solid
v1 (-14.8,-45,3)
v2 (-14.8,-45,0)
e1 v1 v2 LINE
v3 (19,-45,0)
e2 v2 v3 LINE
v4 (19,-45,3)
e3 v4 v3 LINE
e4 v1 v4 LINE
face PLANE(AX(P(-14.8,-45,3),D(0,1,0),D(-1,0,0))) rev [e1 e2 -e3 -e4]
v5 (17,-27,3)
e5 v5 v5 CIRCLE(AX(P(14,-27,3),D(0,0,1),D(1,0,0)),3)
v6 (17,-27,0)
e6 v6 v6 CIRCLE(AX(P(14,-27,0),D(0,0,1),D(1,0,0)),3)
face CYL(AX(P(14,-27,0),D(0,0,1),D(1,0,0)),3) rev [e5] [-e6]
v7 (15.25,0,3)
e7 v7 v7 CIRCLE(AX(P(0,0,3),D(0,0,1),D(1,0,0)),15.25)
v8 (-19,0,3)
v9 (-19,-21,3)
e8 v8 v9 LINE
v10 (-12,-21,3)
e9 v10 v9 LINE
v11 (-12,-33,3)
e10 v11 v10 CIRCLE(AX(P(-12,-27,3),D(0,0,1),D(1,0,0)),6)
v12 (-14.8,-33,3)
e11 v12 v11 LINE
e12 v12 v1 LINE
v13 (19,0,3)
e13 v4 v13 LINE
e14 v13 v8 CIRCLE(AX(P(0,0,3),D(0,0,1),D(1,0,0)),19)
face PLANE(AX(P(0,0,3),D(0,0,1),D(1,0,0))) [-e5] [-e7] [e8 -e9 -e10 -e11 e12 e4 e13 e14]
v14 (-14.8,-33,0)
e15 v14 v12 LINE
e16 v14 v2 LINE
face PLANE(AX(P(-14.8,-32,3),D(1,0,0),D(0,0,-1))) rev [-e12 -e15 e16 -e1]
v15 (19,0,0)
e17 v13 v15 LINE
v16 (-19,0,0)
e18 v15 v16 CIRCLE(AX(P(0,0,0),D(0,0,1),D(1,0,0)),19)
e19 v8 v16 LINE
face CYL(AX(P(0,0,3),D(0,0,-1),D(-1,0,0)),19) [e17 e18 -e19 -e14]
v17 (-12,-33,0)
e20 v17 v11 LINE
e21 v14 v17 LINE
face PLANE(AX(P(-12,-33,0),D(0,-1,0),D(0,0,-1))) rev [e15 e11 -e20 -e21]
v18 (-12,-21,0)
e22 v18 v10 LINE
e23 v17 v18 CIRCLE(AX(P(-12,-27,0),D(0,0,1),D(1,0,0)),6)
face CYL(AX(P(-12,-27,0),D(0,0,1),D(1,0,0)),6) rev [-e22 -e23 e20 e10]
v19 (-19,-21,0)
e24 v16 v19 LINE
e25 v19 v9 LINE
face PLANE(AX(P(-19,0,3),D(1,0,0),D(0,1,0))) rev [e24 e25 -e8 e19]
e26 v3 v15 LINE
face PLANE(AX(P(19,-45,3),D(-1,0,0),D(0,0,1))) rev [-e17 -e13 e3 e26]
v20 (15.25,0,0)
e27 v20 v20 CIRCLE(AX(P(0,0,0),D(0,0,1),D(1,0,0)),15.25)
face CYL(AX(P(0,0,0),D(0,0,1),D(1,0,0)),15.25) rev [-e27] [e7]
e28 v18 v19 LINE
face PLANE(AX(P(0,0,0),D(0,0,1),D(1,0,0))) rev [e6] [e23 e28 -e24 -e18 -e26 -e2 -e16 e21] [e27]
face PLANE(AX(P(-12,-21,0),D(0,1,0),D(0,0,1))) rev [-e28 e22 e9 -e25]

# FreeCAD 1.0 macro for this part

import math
import FreeCAD as App
import Part
import Sketcher

V = App.Vector
Q = App.Units.Quantity

doc = App.newDocument("Part")
body = doc.addObject("PartDesign::Body", "Body")

# Sketch on XY plane
sketch1 = body.newObject("Sketcher::SketchObject", "Sketch")
sketch1.AttachmentSupport = (doc.getObject("XY_Plane"), [""])
sketch1.MapMode = "FlatFace"
sketch1.addGeometry(Part.LineSegment(V(-19, 0, 0), V(-19, -32, 0)), False)
sketch1.addGeometry(Part.LineSegment(V(-19, -32, 0), V(-14.8, -32, 0)), False)
sketch1.addGeometry(Part.LineSegment(V(-14.8, -32, 0), V(-14.8, -45, 0)), False)
sketch1.addGeometry(Part.LineSegment(V(-14.8, -45, 0), V(19, -45, 0)), False)
sketch1.addGeometry(Part.LineSegment(V(19, -45, 0), V(19, 0, 0)), False)
sketch1.addGeometry(Part.ArcOfCircle(Part.Circle(V(0, 0, 0), V(0, 0, 1), 19), math.radians(0), math.radians(180)), False)
sketch1.addGeometry(Part.Circle(V(-14, -27, 0), V(0, 0, 1), 1.5), False)
sketch1.addGeometry(Part.Circle(V(14, -27, 0), V(0, 0, 1), 1.5), False)
sketch1.addGeometry(Part.Circle(V(0, 0, 0), V(0, 0, 1), 2.5), False)
sketch1.addConstraint(Sketcher.Constraint("Coincident", 0, 2, 1, 1))
sketch1.addConstraint(Sketcher.Constraint("Coincident", 1, 2, 2, 1))
sketch1.addConstraint(Sketcher.Constraint("Coincident", 2, 2, 3, 1))
sketch1.addConstraint(Sketcher.Constraint("Coincident", 3, 2, 4, 1))
sketch1.addConstraint(Sketcher.Constraint("Tangent", 4, 2, 5, 1))
sketch1.addConstraint(Sketcher.Constraint("Tangent", 5, 2, 0, 1))
sketch1.addConstraint(Sketcher.Constraint("Vertical", 0))
sketch1.addConstraint(Sketcher.Constraint("Horizontal", 1))
sketch1.addConstraint(Sketcher.Constraint("Vertical", 2))
sketch1.addConstraint(Sketcher.Constraint("Horizontal", 3))
sketch1.addConstraint(Sketcher.Constraint("Vertical", 4))
sketch1.addConstraint(Sketcher.Constraint("Coincident", 5, 3, -1, 1))
sketch1.addConstraint(Sketcher.Constraint("Coincident", 8, 3, -1, 1))
sketch1.addConstraint(Sketcher.Constraint("Equal", 6, 7))
sketch1.addConstraint(Sketcher.Constraint("Symmetric", 6, 3, 7, 3, -2))
sketch1.addConstraint(Sketcher.Constraint("Diameter", 6, Q("3 mm")))
sketch1.addConstraint(Sketcher.Constraint("Diameter", 8, Q("5 mm")))
sketch1.addConstraint(Sketcher.Constraint("Radius", 5, Q("19 mm")))
sketch1.addConstraint(Sketcher.Constraint("DistanceY", 0, 2, 0, 1, Q("32 mm")))
sketch1.addConstraint(Sketcher.Constraint("DistanceY", 2, 2, 2, 1, Q("13 mm")))
sketch1.addConstraint(Sketcher.Constraint("DistanceX", 1, 1, 1, 2, Q("4.2 mm")))
sketch1.addConstraint(Sketcher.Constraint("DistanceX", 6, 3, -1, 1, Q("14 mm")))
sketch1.addConstraint(Sketcher.Constraint("DistanceY", 6, 3, -1, 1, Q("27 mm")))
pad1 = body.newObject("PartDesign::Pad", "Pad")
pad1.Profile = sketch1
pad1.Length = 3

# Sketch on XY plane
sketch2 = body.newObject("Sketcher::SketchObject", "Sketch001")
sketch2.AttachmentSupport = (doc.getObject("XY_Plane"), [""])
sketch2.MapMode = "FlatFace"
sketch2.AttachmentOffset = App.Placement(V(0, 0, 3), App.Rotation())
sketch2.addGeometry(Part.Circle(V(0, 0, 0), V(0, 0, 1), 15.2), False)
sketch2.addGeometry(Part.Circle(V(14, -27, 0), V(0, 0, 1), 3), False)
sketch2.addGeometry(Part.LineSegment(V(-12, -21, 0), V(-19, -21, 0)), False)
sketch2.addGeometry(Part.LineSegment(V(-19, -21, 0), V(-19, -32, 0)), False)
sketch2.addGeometry(Part.LineSegment(V(-19, -32, 0), V(-14.8, -32, 0)), False)
sketch2.addGeometry(Part.LineSegment(V(-14.8, -32, 0), V(-14.8, -33, 0)), False)
sketch2.addGeometry(Part.LineSegment(V(-14.8, -33, 0), V(-12, -33, 0)), False)
sketch2.addGeometry(Part.ArcOfCircle(Part.Circle(V(-12, -27, 0), V(0, 0, 1), 6), math.radians(-90), math.radians(90)), False)
sketch2.addConstraint(Sketcher.Constraint("Coincident", 2, 2, 3, 1))
sketch2.addConstraint(Sketcher.Constraint("Coincident", 3, 2, 4, 1))
sketch2.addConstraint(Sketcher.Constraint("Coincident", 4, 2, 5, 1))
sketch2.addConstraint(Sketcher.Constraint("Coincident", 5, 2, 6, 1))
sketch2.addConstraint(Sketcher.Constraint("Tangent", 6, 2, 7, 1))
sketch2.addConstraint(Sketcher.Constraint("Tangent", 7, 2, 2, 1))
sketch2.addConstraint(Sketcher.Constraint("Horizontal", 2))
sketch2.addConstraint(Sketcher.Constraint("Vertical", 3))
sketch2.addConstraint(Sketcher.Constraint("Horizontal", 4))
sketch2.addConstraint(Sketcher.Constraint("Vertical", 5))
sketch2.addConstraint(Sketcher.Constraint("Horizontal", 6))
sketch2.addConstraint(Sketcher.Constraint("Coincident", 0, 3, -1, 1))
sketch2.addConstraint(Sketcher.Constraint("Horizontal", 1, 3, 7, 3))
sketch2.addConstraint(Sketcher.Constraint("Diameter", 1, Q("6 mm")))
sketch2.addConstraint(Sketcher.Constraint("Radius", 7, Q("6 mm")))
sketch2.addConstraint(Sketcher.Constraint("Diameter", 0, Q("30.5 mm")))
sketch2.addConstraint(Sketcher.Constraint("DistanceX", 2, 2, 2, 1, Q("7 mm")))
sketch2.addConstraint(Sketcher.Constraint("DistanceY", 3, 2, 3, 1, Q("11 mm")))
sketch2.addConstraint(Sketcher.Constraint("DistanceX", 4, 1, 4, 2, Q("4.2 mm")))
sketch2.addConstraint(Sketcher.Constraint("DistanceX", -1, 1, 1, 3, Q("14 mm")))
sketch2.addConstraint(Sketcher.Constraint("DistanceY", 1, 3, -1, 1, Q("27 mm")))
sketch2.addConstraint(Sketcher.Constraint("DistanceX", 7, 3, -1, 1, Q("12 mm")))
pocket1 = body.newObject("PartDesign::Pocket", "Pocket")
pocket1.Profile = sketch2
pocket1.Type = "ThroughAll"

doc.recompute()
